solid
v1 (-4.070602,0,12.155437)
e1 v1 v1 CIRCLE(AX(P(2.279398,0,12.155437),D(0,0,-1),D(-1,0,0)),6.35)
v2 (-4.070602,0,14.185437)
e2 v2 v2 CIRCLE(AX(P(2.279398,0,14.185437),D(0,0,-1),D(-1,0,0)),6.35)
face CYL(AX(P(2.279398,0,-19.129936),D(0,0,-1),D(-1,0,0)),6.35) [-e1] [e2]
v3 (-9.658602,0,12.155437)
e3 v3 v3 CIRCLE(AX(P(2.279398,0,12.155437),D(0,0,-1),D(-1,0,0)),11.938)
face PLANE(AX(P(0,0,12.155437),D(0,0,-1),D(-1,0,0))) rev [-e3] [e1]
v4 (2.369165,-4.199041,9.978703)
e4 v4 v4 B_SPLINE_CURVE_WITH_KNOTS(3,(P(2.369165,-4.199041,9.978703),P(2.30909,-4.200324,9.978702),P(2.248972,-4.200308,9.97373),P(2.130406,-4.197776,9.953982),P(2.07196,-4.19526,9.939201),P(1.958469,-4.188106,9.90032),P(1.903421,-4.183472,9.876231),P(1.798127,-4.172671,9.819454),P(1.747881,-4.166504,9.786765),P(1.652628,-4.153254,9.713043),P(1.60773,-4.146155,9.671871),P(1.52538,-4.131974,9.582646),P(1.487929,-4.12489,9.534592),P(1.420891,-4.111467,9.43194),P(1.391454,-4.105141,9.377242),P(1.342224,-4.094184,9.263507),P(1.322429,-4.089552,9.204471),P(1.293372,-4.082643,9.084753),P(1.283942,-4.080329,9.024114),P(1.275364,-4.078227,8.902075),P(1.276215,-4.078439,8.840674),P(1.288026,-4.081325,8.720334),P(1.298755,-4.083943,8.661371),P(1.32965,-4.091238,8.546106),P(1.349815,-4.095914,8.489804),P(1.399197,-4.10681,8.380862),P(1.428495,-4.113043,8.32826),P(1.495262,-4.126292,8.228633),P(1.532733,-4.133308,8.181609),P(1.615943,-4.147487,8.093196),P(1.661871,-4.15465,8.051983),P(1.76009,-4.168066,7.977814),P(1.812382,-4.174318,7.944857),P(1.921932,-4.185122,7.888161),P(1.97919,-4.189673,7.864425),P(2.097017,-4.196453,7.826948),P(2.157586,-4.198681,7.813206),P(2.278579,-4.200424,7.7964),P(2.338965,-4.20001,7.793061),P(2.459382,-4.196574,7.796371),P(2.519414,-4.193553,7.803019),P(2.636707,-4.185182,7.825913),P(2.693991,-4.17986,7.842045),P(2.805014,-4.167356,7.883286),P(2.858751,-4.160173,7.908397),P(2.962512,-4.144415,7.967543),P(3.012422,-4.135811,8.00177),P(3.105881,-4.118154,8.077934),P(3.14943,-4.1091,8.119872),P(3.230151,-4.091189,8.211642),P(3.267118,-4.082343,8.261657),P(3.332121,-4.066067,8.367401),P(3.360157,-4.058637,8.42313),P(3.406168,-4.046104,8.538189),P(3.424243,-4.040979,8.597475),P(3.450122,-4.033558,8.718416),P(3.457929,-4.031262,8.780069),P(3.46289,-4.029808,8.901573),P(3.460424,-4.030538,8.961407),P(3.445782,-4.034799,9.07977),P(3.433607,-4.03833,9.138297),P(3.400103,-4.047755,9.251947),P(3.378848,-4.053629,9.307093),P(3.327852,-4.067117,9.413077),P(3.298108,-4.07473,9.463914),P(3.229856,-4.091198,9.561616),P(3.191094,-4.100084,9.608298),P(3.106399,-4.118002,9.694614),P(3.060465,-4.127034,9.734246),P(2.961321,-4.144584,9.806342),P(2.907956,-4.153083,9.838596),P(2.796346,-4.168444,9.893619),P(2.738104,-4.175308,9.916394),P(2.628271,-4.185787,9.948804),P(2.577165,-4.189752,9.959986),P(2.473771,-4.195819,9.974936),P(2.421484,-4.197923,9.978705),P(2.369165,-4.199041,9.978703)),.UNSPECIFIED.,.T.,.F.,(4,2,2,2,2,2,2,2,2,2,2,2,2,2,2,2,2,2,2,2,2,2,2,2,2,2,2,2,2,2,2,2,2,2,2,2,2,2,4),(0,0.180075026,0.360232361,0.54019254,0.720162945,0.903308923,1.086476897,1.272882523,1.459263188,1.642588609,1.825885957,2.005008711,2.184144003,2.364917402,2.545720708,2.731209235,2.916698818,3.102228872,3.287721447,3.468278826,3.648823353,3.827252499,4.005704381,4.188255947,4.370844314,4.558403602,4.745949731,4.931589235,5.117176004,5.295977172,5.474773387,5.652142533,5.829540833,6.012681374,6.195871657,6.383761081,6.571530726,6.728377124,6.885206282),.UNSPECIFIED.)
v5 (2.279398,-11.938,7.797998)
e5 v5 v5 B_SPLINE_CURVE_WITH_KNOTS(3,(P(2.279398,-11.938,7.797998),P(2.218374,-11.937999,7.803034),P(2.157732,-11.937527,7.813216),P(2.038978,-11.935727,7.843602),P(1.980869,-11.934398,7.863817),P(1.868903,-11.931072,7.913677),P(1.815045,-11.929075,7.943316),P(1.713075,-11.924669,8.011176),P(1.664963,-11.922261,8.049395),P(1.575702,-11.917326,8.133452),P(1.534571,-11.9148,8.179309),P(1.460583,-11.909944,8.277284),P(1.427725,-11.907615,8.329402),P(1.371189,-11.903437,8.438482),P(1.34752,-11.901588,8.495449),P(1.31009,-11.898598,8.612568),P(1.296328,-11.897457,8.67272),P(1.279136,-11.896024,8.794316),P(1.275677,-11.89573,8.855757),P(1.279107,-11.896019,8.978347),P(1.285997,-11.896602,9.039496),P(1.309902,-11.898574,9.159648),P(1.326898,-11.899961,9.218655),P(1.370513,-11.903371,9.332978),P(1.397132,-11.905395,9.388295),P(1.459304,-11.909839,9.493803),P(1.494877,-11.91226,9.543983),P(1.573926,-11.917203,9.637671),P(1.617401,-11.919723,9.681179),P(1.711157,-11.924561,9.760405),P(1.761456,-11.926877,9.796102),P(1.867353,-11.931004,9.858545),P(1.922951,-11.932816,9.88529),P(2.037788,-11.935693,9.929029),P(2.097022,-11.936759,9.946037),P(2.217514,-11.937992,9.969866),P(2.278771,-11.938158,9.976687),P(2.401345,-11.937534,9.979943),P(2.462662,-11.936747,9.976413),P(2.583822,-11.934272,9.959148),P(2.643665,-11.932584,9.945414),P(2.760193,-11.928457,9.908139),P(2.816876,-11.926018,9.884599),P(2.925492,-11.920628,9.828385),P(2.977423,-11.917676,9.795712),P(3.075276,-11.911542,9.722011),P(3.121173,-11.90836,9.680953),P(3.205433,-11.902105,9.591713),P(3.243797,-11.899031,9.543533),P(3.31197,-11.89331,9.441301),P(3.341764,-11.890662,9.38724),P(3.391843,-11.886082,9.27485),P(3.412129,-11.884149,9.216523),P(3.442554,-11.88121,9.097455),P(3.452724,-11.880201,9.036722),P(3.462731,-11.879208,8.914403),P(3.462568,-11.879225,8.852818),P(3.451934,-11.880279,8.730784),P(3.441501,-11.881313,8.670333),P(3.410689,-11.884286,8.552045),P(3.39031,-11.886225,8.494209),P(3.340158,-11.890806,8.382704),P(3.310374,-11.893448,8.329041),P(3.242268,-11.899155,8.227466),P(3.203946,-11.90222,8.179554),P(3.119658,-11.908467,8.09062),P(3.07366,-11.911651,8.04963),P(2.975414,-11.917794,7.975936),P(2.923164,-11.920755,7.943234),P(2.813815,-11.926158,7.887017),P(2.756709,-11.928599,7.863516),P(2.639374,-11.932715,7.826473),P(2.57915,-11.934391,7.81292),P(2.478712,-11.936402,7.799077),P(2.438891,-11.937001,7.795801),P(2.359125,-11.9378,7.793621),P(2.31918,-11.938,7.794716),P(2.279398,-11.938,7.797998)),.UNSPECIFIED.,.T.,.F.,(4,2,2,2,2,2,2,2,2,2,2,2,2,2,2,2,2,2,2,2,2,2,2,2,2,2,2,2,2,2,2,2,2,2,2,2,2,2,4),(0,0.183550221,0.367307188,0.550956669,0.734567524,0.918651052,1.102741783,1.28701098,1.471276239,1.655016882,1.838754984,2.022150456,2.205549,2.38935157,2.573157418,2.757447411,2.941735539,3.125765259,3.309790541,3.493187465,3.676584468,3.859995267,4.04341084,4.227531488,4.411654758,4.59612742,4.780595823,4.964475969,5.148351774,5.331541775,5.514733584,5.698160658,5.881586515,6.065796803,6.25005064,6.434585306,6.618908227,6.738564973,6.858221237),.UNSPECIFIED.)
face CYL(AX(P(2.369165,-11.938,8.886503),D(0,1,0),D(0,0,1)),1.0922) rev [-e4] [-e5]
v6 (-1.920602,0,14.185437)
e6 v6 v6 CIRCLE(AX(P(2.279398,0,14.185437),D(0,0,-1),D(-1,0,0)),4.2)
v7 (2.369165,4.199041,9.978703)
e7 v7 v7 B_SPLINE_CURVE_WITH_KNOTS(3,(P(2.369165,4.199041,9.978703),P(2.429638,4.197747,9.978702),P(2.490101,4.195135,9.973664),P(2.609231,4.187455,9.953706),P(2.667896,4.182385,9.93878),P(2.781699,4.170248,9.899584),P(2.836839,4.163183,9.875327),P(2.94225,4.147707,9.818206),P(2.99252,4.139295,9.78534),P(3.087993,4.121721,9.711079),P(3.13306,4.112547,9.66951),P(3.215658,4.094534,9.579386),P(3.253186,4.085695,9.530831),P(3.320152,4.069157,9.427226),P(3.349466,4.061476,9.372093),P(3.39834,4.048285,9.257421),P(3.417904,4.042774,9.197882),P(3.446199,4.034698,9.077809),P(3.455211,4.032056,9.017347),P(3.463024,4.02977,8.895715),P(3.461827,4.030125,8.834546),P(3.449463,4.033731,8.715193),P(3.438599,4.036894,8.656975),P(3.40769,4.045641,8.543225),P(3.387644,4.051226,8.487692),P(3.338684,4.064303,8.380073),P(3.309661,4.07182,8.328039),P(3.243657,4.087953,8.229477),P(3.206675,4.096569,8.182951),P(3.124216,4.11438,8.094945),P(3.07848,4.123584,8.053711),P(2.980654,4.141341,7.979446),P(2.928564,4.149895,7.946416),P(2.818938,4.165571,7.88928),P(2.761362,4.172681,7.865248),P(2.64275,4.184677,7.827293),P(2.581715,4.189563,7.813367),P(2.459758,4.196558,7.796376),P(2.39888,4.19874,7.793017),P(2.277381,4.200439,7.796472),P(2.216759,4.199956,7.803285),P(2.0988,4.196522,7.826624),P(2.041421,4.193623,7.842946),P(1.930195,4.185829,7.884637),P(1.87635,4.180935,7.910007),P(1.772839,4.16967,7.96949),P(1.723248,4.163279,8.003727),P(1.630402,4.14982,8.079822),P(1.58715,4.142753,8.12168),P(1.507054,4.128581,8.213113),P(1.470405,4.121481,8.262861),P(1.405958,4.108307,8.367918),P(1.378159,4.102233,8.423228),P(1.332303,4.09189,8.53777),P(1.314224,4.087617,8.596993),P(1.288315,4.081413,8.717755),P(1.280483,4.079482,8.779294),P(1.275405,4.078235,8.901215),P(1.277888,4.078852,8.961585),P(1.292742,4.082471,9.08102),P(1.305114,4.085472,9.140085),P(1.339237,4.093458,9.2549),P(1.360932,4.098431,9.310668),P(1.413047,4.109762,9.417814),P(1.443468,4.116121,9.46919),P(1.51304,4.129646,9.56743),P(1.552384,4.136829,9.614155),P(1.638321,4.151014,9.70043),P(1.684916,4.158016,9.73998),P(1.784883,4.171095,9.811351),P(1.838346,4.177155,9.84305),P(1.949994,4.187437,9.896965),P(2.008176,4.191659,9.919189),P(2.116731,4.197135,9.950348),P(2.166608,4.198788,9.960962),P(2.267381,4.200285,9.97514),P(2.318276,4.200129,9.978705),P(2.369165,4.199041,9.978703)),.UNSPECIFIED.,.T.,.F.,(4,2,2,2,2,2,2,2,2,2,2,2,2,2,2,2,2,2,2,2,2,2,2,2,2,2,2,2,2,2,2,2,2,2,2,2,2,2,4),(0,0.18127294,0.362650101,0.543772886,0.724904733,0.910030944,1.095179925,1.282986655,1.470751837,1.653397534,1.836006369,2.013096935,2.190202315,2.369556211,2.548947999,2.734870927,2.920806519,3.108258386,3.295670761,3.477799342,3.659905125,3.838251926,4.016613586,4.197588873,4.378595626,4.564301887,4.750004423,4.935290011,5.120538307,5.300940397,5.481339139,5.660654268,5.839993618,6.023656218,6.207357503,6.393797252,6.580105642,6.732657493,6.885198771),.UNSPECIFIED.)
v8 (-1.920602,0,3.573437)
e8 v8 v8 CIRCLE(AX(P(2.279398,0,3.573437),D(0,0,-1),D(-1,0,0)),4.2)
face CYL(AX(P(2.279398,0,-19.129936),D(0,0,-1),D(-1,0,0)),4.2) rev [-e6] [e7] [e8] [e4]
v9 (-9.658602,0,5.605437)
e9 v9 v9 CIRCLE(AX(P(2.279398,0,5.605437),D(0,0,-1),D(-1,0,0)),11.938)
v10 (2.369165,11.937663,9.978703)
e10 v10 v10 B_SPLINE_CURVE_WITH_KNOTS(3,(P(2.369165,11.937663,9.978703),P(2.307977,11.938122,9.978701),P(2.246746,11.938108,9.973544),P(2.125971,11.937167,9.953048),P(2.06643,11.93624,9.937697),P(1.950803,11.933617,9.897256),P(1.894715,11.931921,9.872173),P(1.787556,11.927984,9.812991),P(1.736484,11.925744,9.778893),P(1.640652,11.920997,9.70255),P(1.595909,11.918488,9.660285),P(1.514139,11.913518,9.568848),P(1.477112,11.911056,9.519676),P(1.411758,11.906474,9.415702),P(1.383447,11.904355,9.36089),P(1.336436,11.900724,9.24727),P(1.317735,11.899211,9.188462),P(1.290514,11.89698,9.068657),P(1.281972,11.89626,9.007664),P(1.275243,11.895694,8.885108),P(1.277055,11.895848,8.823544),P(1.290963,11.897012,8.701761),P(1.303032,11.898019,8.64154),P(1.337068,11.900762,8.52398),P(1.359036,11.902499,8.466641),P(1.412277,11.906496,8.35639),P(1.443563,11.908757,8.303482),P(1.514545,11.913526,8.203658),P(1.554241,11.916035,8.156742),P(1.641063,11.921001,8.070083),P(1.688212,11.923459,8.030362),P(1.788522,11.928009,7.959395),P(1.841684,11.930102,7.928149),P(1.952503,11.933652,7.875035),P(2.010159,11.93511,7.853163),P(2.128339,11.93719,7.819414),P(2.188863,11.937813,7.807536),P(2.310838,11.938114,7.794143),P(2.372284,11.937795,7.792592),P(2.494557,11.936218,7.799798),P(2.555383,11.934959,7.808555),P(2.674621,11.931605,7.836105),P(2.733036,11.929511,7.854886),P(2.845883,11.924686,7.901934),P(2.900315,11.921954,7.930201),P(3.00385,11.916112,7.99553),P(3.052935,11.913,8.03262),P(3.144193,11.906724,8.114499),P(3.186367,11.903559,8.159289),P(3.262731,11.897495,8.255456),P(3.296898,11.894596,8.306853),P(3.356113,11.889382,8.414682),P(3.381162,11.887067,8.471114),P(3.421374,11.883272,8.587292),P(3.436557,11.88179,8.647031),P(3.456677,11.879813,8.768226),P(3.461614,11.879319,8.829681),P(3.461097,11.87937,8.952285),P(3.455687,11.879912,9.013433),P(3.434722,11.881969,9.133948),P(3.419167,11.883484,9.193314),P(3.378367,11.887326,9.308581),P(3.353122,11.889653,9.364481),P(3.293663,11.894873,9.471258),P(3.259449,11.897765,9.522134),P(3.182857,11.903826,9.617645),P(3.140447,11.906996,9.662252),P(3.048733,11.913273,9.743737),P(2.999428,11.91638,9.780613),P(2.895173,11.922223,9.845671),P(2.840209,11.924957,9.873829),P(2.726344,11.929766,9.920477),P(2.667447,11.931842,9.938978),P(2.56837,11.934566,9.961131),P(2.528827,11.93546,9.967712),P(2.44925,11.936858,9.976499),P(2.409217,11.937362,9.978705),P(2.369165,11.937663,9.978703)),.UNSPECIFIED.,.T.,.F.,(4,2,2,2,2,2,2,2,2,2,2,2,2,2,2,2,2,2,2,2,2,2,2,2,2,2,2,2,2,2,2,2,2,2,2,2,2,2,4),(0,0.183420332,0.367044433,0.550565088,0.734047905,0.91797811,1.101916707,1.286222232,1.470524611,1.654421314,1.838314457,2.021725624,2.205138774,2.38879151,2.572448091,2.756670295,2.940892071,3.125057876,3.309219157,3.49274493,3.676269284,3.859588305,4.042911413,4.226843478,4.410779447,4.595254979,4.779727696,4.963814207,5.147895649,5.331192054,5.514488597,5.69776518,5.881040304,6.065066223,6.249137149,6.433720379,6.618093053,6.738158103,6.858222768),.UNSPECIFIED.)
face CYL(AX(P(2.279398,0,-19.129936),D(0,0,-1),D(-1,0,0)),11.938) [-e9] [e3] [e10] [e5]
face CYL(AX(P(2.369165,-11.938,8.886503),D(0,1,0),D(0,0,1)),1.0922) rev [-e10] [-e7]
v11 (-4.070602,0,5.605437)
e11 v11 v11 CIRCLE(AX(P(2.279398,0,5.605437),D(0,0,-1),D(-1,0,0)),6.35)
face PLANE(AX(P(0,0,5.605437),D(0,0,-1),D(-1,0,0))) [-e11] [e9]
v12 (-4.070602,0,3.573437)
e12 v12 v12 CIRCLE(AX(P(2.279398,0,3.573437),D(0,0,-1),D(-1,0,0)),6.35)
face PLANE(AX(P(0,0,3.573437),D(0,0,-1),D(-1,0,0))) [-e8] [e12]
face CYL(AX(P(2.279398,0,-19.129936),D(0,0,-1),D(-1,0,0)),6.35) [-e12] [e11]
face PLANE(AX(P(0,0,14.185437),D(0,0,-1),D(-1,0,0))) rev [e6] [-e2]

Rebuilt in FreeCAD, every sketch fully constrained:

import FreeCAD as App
import Part
import Sketcher
Q = App.Units.Quantity


def add_polygon(sketch, points):
    """Adds a closed chain of lines whose ends are joined by coincident constraints."""
    first, n = sketch.GeometryCount, len(points)
    for a, b in zip(points, points[1:] + points[:1]):
        sketch.addGeometry(Part.LineSegment(App.Vector(*a, 0), App.Vector(*b, 0)), False)
    for i in range(n):
        sketch.addConstraint(Sketcher.Constraint("Coincident", first + i, 2, first + (i + 1) % n, 1))

doc = App.newDocument("Part")
params = doc.addObject("Spreadsheet::Sheet", "Params")
for row, (alias, value) in enumerate([
    ("sketch1_width", "0.22 in"),
    ("sketch1_height", "0.08 in"),
    ("revolution_angle", "360 deg"),
    ("sketch2_diameter", "0.086 in"),
], start=1):
    params.set(f"A{row}", alias)
    params.set(f"B{row}", "=" + value)
    params.setAlias(f"B{row}", alias)

body = doc.addObject("PartDesign::Body", "Body")

sketch1 = body.newObject("Sketcher::SketchObject", "Sketch")
sketch1.AttachmentSupport = (doc.getObject("XZ_Plane"), [""])
sketch1.MapMode = "FlatFace"
add_polygon(sketch1, [(-4.1, 14.2), (-1.9, 14.2), (-1.9, 3.6), (-4.1, 3.6), (-4.1, 5.6), (-9.7, 5.6), (-9.7, 12.2), (-4.1, 12.2)])
sketch1.addGeometry(Part.LineSegment(App.Vector(2.3, 3.6, 0), App.Vector(2.3, 14.2, 0)), True)
sketch1.addConstraint([
    Sketcher.Constraint("Horizontal", 0),
    Sketcher.Constraint("Vertical", 1),
    Sketcher.Constraint("Horizontal", 2),
    Sketcher.Constraint("Vertical", 3),
    Sketcher.Constraint("Horizontal", 4),
    Sketcher.Constraint("Vertical", 5),
    Sketcher.Constraint("Horizontal", 6),
    Sketcher.Constraint("Vertical", 7),
    Sketcher.Constraint("Vertical", 8),
    Sketcher.Constraint("Horizontal", 2, 2, 8, 1),
    Sketcher.Constraint("Horizontal", 7, 2, 8, 2),
    Sketcher.Constraint("Vertical", 3, 2, 6, 2),
    Sketcher.Constraint("DistanceX", 4, 2, 4, 1, Q("0.22 in")),
    Sketcher.Constraint("DistanceY", 3, 1, 3, 2, Q("0.08 in")),
    Sketcher.Constraint("DistanceX", 2, 2, 8, 1, Q("0.25 in")),
    Sketcher.Constraint("DistanceX", 0, 1, 0, 2, 2.15),
    Sketcher.Constraint("DistanceY", 1, 2, 1, 1, 10.612),
    Sketcher.Constraint("DistanceY", 5, 1, 5, 2, 6.55),
    Sketcher.Constraint("DistanceX", 0, 2, -1, 1, 1.920602),
    Sketcher.Constraint("DistanceY", -1, 1, 0, 2, 14.185437),
])
sketch1.setExpression("Constraints[20]", "Params.sketch1_width")
sketch1.setExpression("Constraints[21]", "Params.sketch1_height")
revolution = body.newObject("PartDesign::Revolution", "Revolution")
revolution.Profile = sketch1
revolution.ReferenceAxis = (sketch1, ["Axis0"])
revolution.setExpression("Angle", "Params.revolution_angle")

sketch2 = body.newObject("Sketcher::SketchObject", "Sketch001")
sketch2.AttachmentSupport = (doc.getObject("XZ_Plane"), [""])
sketch2.MapMode = "FlatFace"
sketch2.AttachmentOffset = App.Placement(App.Vector(0, 0, -0.47 * 25.4), App.Rotation())
sketch2.addGeometry(Part.Circle(App.Vector(2.4, 8.9, 0), App.Vector(0, 0, 1), 1.1), False)
sketch2.addConstraint([
    Sketcher.Constraint("Diameter", 0, Q("0.086 in")),
    Sketcher.Constraint("DistanceX", -1, 1, 0, 3, 2.369165),
    Sketcher.Constraint("DistanceY", -1, 1, 0, 3, 8.886503),
])
sketch2.setExpression("Constraints[0]", "Params.sketch2_diameter")
pocket1 = body.newObject("PartDesign::Pocket", "Pocket")
pocket1.Profile = sketch2
pocket1.Type = "ThroughAll"
pocket1.Reversed = True

doc.recompute()
